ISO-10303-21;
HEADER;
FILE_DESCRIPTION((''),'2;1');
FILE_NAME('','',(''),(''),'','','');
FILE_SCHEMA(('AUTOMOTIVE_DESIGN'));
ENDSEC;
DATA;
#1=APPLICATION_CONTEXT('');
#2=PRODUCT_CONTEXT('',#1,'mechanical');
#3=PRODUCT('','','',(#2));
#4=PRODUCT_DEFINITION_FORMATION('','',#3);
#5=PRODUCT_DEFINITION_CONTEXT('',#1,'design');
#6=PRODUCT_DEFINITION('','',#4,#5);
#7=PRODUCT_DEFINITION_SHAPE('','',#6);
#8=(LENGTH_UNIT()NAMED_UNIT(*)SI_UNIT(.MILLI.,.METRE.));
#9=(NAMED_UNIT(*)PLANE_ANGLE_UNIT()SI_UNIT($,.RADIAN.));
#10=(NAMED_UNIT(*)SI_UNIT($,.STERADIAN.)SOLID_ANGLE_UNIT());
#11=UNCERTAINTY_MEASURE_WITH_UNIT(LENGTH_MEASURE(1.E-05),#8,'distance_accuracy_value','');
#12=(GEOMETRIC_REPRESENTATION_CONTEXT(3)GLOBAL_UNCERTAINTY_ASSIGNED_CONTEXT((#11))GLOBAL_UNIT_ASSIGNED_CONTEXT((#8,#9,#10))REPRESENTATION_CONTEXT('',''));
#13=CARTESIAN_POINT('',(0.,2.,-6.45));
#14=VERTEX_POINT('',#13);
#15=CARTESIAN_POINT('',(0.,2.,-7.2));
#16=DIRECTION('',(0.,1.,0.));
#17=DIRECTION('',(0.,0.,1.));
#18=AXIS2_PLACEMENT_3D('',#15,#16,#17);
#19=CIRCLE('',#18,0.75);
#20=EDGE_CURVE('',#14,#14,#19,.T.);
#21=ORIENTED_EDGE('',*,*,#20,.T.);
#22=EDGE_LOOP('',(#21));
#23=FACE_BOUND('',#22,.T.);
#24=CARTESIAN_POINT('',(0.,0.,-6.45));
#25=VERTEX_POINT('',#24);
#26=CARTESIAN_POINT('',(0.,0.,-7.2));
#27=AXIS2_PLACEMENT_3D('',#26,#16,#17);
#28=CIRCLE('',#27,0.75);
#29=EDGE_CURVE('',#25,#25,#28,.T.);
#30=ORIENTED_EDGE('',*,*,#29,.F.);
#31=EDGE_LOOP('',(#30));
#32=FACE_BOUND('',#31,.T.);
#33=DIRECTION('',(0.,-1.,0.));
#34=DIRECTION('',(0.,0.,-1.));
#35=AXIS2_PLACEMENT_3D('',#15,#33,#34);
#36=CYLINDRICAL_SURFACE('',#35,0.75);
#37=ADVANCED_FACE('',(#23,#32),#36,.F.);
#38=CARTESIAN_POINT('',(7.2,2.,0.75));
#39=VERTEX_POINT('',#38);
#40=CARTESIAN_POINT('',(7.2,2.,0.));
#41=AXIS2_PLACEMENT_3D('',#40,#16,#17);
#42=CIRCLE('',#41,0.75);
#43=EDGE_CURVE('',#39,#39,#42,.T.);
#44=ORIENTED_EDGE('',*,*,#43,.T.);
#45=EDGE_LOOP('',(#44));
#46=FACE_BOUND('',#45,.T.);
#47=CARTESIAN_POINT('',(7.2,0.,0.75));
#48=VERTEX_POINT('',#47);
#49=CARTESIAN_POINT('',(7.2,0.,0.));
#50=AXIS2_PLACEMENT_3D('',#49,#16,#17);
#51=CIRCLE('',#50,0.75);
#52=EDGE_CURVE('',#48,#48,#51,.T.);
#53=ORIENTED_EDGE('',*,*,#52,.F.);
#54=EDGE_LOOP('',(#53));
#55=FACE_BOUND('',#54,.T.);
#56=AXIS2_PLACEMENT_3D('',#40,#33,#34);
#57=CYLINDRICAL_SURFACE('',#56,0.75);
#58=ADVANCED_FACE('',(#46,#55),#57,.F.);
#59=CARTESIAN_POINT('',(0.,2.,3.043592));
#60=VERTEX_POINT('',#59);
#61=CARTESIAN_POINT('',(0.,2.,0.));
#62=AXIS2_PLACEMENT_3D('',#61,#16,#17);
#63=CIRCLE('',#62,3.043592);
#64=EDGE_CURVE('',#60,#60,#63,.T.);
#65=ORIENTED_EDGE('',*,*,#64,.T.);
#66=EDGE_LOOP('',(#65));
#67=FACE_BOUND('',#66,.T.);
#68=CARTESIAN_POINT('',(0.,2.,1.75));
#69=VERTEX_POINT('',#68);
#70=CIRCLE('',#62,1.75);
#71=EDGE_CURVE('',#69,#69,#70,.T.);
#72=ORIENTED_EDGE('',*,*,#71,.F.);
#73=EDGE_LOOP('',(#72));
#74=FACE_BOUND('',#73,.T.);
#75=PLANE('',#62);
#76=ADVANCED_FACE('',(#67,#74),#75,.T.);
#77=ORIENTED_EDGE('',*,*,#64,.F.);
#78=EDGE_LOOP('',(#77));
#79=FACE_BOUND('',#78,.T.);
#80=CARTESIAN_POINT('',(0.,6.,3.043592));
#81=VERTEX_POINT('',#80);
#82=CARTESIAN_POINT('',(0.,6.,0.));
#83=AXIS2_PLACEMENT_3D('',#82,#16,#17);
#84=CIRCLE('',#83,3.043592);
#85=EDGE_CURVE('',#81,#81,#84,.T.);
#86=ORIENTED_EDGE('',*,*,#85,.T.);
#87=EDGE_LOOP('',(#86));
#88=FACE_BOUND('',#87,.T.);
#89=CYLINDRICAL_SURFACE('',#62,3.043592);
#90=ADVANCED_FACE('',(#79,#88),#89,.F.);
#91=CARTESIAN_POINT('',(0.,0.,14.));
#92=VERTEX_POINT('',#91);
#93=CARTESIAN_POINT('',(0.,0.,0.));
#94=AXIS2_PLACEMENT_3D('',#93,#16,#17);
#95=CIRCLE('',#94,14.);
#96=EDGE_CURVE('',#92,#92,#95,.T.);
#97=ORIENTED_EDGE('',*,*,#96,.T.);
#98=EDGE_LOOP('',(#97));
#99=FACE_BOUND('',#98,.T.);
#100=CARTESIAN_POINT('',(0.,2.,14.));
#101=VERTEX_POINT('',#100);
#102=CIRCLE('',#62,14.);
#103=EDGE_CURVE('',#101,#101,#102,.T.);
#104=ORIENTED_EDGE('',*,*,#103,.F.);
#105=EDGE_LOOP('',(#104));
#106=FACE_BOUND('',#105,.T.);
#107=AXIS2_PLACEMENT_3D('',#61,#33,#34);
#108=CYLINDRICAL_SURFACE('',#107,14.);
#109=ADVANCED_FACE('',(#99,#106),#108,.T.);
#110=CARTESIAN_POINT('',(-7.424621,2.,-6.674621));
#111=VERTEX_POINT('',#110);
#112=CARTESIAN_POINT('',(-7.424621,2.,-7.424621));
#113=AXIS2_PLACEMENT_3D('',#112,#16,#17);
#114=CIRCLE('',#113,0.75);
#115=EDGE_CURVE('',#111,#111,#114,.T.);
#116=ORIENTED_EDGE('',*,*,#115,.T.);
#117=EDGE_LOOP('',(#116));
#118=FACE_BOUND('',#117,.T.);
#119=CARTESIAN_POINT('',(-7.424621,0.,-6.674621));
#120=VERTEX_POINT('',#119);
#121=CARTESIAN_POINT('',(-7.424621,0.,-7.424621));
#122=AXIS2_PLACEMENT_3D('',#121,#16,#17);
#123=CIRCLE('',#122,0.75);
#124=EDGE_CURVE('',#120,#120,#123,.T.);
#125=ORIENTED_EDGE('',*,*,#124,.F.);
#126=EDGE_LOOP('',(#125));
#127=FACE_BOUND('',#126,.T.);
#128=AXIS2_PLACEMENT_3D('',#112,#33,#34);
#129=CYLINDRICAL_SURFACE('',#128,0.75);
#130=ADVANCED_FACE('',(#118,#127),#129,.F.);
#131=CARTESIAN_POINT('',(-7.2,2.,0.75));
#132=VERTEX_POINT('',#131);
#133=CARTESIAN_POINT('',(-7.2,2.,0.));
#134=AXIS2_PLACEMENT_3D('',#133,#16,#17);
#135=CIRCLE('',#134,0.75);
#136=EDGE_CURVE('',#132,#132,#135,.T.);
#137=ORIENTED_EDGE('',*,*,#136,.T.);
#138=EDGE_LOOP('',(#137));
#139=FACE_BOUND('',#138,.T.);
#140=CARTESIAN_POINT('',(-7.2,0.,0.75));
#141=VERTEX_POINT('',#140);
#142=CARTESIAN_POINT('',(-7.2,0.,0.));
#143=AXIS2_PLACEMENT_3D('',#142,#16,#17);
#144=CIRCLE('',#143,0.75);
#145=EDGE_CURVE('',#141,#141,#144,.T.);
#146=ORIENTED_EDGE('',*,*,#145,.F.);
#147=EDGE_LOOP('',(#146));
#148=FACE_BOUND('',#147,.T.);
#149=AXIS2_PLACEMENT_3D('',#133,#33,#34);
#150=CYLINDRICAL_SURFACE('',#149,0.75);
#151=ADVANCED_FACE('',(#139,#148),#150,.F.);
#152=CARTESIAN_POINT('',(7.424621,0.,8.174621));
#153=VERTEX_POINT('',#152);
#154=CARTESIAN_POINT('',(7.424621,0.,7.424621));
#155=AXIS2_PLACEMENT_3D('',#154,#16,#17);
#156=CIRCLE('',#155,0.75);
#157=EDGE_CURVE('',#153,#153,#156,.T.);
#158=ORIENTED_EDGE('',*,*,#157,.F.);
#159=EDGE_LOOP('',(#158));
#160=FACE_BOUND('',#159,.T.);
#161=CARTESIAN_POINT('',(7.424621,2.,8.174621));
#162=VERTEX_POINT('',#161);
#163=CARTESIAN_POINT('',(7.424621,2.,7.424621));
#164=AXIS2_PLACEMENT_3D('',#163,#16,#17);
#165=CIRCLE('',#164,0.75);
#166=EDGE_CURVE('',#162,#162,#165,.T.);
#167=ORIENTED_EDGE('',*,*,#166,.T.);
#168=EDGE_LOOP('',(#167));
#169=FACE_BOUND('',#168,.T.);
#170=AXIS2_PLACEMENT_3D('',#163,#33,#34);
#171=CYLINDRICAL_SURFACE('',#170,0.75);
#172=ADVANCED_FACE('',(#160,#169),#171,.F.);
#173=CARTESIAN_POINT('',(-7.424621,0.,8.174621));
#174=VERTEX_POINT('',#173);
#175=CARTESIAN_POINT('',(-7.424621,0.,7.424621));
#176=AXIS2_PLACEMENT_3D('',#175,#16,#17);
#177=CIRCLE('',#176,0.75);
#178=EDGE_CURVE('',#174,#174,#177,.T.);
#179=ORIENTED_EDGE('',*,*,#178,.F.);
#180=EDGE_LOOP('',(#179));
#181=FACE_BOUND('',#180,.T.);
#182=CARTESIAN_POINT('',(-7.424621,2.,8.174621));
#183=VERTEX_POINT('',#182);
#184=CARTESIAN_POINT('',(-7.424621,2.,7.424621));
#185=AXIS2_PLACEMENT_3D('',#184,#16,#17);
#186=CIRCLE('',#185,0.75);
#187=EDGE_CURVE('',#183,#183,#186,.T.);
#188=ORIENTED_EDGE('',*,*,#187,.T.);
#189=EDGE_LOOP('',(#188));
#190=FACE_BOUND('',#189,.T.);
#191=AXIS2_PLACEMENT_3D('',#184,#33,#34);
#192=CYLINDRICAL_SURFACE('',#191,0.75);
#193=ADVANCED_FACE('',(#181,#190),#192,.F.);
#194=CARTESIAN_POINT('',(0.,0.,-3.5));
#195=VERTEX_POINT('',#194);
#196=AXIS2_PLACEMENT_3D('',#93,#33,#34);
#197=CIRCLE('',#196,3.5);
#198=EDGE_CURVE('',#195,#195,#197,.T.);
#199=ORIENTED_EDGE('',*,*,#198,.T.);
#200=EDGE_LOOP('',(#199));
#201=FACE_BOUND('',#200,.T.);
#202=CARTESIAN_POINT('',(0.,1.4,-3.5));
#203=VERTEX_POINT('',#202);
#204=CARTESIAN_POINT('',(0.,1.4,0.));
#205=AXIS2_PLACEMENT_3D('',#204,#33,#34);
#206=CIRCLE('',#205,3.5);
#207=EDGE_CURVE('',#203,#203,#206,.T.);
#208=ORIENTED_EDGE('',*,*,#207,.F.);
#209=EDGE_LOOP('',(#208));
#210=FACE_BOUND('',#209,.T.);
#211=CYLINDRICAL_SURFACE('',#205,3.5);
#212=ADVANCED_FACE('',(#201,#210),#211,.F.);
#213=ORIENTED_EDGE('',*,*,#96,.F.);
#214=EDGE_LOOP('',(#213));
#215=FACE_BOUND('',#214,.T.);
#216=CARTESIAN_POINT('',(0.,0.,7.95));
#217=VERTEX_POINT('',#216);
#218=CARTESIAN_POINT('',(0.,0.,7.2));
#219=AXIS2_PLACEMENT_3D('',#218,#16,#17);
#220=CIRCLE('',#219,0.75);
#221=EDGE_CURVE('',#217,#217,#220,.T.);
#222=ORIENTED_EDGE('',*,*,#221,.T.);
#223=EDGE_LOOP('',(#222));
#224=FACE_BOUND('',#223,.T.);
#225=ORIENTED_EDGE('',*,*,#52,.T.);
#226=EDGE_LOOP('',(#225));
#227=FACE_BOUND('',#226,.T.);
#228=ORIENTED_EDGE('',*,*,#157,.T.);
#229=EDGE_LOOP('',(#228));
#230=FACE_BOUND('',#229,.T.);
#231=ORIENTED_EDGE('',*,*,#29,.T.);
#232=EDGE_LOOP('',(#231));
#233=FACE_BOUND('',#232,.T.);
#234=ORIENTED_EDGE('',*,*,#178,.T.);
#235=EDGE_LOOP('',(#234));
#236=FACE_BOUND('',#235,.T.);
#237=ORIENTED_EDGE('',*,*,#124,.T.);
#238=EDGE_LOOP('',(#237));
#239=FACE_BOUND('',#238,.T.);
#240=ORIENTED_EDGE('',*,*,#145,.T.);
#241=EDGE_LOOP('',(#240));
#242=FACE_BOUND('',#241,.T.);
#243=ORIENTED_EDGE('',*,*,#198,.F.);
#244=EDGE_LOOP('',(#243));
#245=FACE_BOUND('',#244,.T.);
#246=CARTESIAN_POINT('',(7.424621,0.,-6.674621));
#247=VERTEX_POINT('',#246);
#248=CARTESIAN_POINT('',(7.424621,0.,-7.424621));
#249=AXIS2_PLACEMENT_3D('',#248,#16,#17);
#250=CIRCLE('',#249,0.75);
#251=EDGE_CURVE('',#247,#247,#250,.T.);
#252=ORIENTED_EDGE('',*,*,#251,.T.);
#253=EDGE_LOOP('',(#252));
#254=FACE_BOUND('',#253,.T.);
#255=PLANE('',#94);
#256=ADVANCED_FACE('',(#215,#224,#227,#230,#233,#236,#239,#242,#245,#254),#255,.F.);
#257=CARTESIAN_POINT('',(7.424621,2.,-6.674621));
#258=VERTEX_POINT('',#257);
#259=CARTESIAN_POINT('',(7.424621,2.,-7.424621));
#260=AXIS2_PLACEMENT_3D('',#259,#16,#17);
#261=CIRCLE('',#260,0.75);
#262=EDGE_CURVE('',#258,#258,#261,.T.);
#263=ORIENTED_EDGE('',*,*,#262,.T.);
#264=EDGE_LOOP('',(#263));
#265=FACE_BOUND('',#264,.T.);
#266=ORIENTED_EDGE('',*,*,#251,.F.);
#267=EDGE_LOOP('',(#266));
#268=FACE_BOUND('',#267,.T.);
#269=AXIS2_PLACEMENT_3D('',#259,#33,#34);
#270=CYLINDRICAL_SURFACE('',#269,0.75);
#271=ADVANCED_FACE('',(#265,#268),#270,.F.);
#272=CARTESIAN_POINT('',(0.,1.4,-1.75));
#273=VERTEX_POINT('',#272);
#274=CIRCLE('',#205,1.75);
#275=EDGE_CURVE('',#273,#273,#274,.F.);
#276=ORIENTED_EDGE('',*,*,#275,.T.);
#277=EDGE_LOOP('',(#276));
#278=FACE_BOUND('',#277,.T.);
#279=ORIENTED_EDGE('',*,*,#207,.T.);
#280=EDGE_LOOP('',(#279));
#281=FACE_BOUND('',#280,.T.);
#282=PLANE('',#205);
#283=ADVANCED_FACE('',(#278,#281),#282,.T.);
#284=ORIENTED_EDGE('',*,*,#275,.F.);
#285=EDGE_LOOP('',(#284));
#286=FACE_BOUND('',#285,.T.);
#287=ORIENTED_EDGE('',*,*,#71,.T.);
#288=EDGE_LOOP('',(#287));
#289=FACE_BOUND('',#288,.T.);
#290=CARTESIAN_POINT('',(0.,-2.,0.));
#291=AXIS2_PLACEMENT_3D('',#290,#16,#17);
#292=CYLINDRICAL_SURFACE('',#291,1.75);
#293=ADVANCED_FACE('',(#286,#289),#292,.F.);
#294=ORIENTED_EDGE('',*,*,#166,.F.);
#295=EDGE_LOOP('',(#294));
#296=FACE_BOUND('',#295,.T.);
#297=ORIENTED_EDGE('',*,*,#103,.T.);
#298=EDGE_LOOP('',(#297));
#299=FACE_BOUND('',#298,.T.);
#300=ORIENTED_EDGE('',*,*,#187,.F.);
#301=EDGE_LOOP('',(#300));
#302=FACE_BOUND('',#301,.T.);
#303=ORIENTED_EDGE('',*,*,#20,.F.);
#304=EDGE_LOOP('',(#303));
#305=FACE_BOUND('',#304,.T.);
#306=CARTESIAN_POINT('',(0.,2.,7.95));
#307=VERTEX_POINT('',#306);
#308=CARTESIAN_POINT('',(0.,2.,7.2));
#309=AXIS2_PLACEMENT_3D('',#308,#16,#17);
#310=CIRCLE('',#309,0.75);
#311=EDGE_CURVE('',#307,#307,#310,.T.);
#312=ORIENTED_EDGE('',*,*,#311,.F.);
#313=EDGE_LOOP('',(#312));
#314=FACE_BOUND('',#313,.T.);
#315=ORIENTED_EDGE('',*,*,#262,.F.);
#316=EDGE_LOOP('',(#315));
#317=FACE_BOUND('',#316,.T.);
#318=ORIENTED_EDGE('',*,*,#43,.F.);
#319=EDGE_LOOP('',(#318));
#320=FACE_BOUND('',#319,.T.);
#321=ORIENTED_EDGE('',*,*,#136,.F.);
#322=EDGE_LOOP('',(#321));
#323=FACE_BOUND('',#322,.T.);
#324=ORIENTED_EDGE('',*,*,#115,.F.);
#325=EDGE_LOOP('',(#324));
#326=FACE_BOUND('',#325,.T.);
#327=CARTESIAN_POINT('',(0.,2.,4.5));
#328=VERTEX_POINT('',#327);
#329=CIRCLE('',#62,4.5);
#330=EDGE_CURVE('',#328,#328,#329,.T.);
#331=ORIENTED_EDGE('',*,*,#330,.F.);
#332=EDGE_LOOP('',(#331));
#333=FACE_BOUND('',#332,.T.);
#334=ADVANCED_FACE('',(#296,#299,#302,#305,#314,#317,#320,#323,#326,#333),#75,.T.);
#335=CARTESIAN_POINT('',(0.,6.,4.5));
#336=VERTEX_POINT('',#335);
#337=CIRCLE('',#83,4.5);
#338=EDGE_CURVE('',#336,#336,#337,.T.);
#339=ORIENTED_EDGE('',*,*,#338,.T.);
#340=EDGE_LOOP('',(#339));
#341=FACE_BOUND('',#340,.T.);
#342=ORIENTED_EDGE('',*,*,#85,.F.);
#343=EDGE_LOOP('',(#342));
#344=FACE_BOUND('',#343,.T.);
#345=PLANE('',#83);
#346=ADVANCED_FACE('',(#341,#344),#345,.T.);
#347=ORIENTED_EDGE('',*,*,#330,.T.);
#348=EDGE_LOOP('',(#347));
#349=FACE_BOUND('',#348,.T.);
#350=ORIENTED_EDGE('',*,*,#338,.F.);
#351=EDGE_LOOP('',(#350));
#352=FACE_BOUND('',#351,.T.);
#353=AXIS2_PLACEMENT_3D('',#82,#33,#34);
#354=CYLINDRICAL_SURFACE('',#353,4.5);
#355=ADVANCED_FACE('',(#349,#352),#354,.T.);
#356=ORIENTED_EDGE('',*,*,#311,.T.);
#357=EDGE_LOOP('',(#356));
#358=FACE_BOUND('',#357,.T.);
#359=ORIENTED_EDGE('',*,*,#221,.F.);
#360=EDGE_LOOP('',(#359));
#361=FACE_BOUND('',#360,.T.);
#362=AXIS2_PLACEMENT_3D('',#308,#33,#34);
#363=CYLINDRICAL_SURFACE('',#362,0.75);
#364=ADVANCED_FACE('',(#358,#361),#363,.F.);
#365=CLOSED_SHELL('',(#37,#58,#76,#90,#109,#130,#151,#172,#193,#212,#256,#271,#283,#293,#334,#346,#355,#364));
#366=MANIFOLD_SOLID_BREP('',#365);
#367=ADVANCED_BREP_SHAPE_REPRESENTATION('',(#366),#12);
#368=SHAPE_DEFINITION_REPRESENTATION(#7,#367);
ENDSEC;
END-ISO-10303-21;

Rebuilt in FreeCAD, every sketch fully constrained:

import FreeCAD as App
import Part
import Sketcher
Q = App.Units.Quantity

doc = App.newDocument("Part")
body = doc.addObject("PartDesign::Body", "Body")

# Sketch on XZ plane
sketch1 = doc.addObject("Sketcher::SketchObject", "Sketch")
body.addObject(sketch1)
sketch1.AttachmentSupport = (doc.XZ_Plane, [""])
sketch1.MapMode = "FlatFace"
sketch1.addGeometry(Part.Circle(App.Vector(0, 0, 0), App.Vector(0, 0, 1), 14), False)
sketch1.addGeometry(Part.Circle(App.Vector(-7.424621, -7.424621, 0), App.Vector(0, 0, 1), 0.75), False)
sketch1.addGeometry(Part.Circle(App.Vector(-7.2, 0, 0), App.Vector(0, 0, 1), 0.75), False)
sketch1.addGeometry(Part.Circle(App.Vector(-7.424621, 7.424621, 0), App.Vector(0, 0, 1), 0.75), False)
sketch1.addGeometry(Part.Circle(App.Vector(0, -7.2, 0), App.Vector(0, 0, 1), 0.75), False)
sketch1.addGeometry(Part.Circle(App.Vector(7.424621, -7.424621, 0), App.Vector(0, 0, 1), 0.75), False)
sketch1.addGeometry(Part.Circle(App.Vector(7.2, 0, 0), App.Vector(0, 0, 1), 0.75), False)
sketch1.addGeometry(Part.Circle(App.Vector(0, 7.2, 0), App.Vector(0, 0, 1), 0.75), False)
sketch1.addGeometry(Part.Circle(App.Vector(7.424621, 7.424621, 0), App.Vector(0, 0, 1), 0.75), False)
sketch1.addConstraint(Sketcher.Constraint("Coincident", 0, 3, -1, 1))
sketch1.addConstraint(Sketcher.Constraint("Equal", 1, 2))
sketch1.addConstraint(Sketcher.Constraint("Equal", 2, 3))
sketch1.addConstraint(Sketcher.Constraint("Equal", 3, 4))
sketch1.addConstraint(Sketcher.Constraint("Equal", 4, 5))
sketch1.addConstraint(Sketcher.Constraint("Equal", 5, 6))
sketch1.addConstraint(Sketcher.Constraint("Equal", 6, 7))
sketch1.addConstraint(Sketcher.Constraint("Equal", 7, 8))
sketch1.addConstraint(Sketcher.Constraint("Symmetric", 3, 3, 5, 3, -1, 1))
sketch1.addConstraint(Sketcher.Constraint("Symmetric", 2, 3, 6, 3, -1, 1))
sketch1.addConstraint(Sketcher.Constraint("Symmetric", 4, 3, 7, 3, -1, 1))
sketch1.addConstraint(Sketcher.Constraint("Symmetric", 1, 3, 8, 3, -1, 1))
sketch1.addConstraint(Sketcher.Constraint("Symmetric", 1, 3, 5, 3, -2))
sketch1.addConstraint(Sketcher.Constraint("PointOnObject", 2, 3, -1))
sketch1.addConstraint(Sketcher.Constraint("PointOnObject", 4, 3, -2))
sketch1.addConstraint(Sketcher.Constraint("Diameter", 0, Q("28 mm")))
sketch1.addConstraint(Sketcher.Constraint("Diameter", 1, Q("1.5 mm")))
sketch1.addConstraint(Sketcher.Constraint("DistanceX", 2, 3, -1, 1, Q("7.2 mm")))
sketch1.addConstraint(Sketcher.Constraint("DistanceY", 4, 3, -1, 1, Q("7.2 mm")))
sketch1.addConstraint(Sketcher.Constraint("DistanceX", 1, 3, -1, 1, Q("7.424621 mm")))
sketch1.addConstraint(Sketcher.Constraint("DistanceY", 1, 3, -1, 1, Q("7.424621 mm")))
pad1 = doc.addObject("PartDesign::Pad", "Pad")
body.addObject(pad1)
pad1.Profile = sketch1
pad1.Length = 2
pad1.Reversed = True

# Sketch on XZ plane
sketch2 = doc.addObject("Sketcher::SketchObject", "Sketch001")
body.addObject(sketch2)
sketch2.AttachmentSupport = (doc.XZ_Plane, [""])
sketch2.MapMode = "FlatFace"
sketch2.AttachmentOffset = App.Placement(App.Vector(0, 0, -2), App.Rotation())
sketch2.addGeometry(Part.Circle(App.Vector(0, 0, 0), App.Vector(0, 0, 1), 4.5), False)
sketch2.addConstraint(Sketcher.Constraint("Coincident", 0, 3, -1, 1))
sketch2.addConstraint(Sketcher.Constraint("Diameter", 0, Q("9 mm")))
pad2 = doc.addObject("PartDesign::Pad", "Pad001")
body.addObject(pad2)
pad2.Profile = sketch2
pad2.Length = 4
pad2.Reversed = True

# Sketch on XZ plane
sketch3 = doc.addObject("Sketcher::SketchObject", "Sketch002")
body.addObject(sketch3)
sketch3.AttachmentSupport = (doc.XZ_Plane, [""])
sketch3.MapMode = "FlatFace"
sketch3.AttachmentOffset = App.Placement(App.Vector(0, 0, -6), App.Rotation())
sketch3.addGeometry(Part.Circle(App.Vector(0, 0, 0), App.Vector(0, 0, 1), 3.043592), False)
sketch3.addConstraint(Sketcher.Constraint("Coincident", 0, 3, -1, 1))
sketch3.addConstraint(Sketcher.Constraint("Diameter", 0, Q("6.087183 mm")))
pocket1 = doc.addObject("PartDesign::Pocket", "Pocket")
body.addObject(pocket1)
pocket1.Profile = sketch3
pocket1.Length = 4
pocket1.Reversed = True

# Sketch on XZ plane
sketch4 = doc.addObject("Sketcher::SketchObject", "Sketch003")
body.addObject(sketch4)
sketch4.AttachmentSupport = (doc.XZ_Plane, [""])
sketch4.MapMode = "FlatFace"
sketch4.AttachmentOffset = App.Placement(App.Vector(0, 0, -2), App.Rotation())
sketch4.addGeometry(Part.Circle(App.Vector(0, 0, 0), App.Vector(0, 0, 1), 1.75), False)
sketch4.addConstraint(Sketcher.Constraint("Coincident", 0, 3, -1, 1))
sketch4.addConstraint(Sketcher.Constraint("Diameter", 0, Q("3.5 mm")))
pocket2 = doc.addObject("PartDesign::Pocket", "Pocket001")
body.addObject(pocket2)
pocket2.Profile = sketch4
pocket2.Length = 4
pocket2.Reversed = True

# Sketch on XZ plane
sketch5 = doc.addObject("Sketcher::SketchObject", "Sketch004")
body.addObject(sketch5)
sketch5.AttachmentSupport = (doc.XZ_Plane, [""])
sketch5.MapMode = "FlatFace"
sketch5.addGeometry(Part.Circle(App.Vector(0, 0, 0), App.Vector(0, 0, 1), 3.5), False)
sketch5.addConstraint(Sketcher.Constraint("Coincident", 0, 3, -1, 1))
sketch5.addConstraint(Sketcher.Constraint("Diameter", 0, Q("7 mm")))
pocket3 = doc.addObject("PartDesign::Pocket", "Pocket002")
body.addObject(pocket3)
pocket3.Profile = sketch5
pocket3.Length = 1.4

doc.recompute()
